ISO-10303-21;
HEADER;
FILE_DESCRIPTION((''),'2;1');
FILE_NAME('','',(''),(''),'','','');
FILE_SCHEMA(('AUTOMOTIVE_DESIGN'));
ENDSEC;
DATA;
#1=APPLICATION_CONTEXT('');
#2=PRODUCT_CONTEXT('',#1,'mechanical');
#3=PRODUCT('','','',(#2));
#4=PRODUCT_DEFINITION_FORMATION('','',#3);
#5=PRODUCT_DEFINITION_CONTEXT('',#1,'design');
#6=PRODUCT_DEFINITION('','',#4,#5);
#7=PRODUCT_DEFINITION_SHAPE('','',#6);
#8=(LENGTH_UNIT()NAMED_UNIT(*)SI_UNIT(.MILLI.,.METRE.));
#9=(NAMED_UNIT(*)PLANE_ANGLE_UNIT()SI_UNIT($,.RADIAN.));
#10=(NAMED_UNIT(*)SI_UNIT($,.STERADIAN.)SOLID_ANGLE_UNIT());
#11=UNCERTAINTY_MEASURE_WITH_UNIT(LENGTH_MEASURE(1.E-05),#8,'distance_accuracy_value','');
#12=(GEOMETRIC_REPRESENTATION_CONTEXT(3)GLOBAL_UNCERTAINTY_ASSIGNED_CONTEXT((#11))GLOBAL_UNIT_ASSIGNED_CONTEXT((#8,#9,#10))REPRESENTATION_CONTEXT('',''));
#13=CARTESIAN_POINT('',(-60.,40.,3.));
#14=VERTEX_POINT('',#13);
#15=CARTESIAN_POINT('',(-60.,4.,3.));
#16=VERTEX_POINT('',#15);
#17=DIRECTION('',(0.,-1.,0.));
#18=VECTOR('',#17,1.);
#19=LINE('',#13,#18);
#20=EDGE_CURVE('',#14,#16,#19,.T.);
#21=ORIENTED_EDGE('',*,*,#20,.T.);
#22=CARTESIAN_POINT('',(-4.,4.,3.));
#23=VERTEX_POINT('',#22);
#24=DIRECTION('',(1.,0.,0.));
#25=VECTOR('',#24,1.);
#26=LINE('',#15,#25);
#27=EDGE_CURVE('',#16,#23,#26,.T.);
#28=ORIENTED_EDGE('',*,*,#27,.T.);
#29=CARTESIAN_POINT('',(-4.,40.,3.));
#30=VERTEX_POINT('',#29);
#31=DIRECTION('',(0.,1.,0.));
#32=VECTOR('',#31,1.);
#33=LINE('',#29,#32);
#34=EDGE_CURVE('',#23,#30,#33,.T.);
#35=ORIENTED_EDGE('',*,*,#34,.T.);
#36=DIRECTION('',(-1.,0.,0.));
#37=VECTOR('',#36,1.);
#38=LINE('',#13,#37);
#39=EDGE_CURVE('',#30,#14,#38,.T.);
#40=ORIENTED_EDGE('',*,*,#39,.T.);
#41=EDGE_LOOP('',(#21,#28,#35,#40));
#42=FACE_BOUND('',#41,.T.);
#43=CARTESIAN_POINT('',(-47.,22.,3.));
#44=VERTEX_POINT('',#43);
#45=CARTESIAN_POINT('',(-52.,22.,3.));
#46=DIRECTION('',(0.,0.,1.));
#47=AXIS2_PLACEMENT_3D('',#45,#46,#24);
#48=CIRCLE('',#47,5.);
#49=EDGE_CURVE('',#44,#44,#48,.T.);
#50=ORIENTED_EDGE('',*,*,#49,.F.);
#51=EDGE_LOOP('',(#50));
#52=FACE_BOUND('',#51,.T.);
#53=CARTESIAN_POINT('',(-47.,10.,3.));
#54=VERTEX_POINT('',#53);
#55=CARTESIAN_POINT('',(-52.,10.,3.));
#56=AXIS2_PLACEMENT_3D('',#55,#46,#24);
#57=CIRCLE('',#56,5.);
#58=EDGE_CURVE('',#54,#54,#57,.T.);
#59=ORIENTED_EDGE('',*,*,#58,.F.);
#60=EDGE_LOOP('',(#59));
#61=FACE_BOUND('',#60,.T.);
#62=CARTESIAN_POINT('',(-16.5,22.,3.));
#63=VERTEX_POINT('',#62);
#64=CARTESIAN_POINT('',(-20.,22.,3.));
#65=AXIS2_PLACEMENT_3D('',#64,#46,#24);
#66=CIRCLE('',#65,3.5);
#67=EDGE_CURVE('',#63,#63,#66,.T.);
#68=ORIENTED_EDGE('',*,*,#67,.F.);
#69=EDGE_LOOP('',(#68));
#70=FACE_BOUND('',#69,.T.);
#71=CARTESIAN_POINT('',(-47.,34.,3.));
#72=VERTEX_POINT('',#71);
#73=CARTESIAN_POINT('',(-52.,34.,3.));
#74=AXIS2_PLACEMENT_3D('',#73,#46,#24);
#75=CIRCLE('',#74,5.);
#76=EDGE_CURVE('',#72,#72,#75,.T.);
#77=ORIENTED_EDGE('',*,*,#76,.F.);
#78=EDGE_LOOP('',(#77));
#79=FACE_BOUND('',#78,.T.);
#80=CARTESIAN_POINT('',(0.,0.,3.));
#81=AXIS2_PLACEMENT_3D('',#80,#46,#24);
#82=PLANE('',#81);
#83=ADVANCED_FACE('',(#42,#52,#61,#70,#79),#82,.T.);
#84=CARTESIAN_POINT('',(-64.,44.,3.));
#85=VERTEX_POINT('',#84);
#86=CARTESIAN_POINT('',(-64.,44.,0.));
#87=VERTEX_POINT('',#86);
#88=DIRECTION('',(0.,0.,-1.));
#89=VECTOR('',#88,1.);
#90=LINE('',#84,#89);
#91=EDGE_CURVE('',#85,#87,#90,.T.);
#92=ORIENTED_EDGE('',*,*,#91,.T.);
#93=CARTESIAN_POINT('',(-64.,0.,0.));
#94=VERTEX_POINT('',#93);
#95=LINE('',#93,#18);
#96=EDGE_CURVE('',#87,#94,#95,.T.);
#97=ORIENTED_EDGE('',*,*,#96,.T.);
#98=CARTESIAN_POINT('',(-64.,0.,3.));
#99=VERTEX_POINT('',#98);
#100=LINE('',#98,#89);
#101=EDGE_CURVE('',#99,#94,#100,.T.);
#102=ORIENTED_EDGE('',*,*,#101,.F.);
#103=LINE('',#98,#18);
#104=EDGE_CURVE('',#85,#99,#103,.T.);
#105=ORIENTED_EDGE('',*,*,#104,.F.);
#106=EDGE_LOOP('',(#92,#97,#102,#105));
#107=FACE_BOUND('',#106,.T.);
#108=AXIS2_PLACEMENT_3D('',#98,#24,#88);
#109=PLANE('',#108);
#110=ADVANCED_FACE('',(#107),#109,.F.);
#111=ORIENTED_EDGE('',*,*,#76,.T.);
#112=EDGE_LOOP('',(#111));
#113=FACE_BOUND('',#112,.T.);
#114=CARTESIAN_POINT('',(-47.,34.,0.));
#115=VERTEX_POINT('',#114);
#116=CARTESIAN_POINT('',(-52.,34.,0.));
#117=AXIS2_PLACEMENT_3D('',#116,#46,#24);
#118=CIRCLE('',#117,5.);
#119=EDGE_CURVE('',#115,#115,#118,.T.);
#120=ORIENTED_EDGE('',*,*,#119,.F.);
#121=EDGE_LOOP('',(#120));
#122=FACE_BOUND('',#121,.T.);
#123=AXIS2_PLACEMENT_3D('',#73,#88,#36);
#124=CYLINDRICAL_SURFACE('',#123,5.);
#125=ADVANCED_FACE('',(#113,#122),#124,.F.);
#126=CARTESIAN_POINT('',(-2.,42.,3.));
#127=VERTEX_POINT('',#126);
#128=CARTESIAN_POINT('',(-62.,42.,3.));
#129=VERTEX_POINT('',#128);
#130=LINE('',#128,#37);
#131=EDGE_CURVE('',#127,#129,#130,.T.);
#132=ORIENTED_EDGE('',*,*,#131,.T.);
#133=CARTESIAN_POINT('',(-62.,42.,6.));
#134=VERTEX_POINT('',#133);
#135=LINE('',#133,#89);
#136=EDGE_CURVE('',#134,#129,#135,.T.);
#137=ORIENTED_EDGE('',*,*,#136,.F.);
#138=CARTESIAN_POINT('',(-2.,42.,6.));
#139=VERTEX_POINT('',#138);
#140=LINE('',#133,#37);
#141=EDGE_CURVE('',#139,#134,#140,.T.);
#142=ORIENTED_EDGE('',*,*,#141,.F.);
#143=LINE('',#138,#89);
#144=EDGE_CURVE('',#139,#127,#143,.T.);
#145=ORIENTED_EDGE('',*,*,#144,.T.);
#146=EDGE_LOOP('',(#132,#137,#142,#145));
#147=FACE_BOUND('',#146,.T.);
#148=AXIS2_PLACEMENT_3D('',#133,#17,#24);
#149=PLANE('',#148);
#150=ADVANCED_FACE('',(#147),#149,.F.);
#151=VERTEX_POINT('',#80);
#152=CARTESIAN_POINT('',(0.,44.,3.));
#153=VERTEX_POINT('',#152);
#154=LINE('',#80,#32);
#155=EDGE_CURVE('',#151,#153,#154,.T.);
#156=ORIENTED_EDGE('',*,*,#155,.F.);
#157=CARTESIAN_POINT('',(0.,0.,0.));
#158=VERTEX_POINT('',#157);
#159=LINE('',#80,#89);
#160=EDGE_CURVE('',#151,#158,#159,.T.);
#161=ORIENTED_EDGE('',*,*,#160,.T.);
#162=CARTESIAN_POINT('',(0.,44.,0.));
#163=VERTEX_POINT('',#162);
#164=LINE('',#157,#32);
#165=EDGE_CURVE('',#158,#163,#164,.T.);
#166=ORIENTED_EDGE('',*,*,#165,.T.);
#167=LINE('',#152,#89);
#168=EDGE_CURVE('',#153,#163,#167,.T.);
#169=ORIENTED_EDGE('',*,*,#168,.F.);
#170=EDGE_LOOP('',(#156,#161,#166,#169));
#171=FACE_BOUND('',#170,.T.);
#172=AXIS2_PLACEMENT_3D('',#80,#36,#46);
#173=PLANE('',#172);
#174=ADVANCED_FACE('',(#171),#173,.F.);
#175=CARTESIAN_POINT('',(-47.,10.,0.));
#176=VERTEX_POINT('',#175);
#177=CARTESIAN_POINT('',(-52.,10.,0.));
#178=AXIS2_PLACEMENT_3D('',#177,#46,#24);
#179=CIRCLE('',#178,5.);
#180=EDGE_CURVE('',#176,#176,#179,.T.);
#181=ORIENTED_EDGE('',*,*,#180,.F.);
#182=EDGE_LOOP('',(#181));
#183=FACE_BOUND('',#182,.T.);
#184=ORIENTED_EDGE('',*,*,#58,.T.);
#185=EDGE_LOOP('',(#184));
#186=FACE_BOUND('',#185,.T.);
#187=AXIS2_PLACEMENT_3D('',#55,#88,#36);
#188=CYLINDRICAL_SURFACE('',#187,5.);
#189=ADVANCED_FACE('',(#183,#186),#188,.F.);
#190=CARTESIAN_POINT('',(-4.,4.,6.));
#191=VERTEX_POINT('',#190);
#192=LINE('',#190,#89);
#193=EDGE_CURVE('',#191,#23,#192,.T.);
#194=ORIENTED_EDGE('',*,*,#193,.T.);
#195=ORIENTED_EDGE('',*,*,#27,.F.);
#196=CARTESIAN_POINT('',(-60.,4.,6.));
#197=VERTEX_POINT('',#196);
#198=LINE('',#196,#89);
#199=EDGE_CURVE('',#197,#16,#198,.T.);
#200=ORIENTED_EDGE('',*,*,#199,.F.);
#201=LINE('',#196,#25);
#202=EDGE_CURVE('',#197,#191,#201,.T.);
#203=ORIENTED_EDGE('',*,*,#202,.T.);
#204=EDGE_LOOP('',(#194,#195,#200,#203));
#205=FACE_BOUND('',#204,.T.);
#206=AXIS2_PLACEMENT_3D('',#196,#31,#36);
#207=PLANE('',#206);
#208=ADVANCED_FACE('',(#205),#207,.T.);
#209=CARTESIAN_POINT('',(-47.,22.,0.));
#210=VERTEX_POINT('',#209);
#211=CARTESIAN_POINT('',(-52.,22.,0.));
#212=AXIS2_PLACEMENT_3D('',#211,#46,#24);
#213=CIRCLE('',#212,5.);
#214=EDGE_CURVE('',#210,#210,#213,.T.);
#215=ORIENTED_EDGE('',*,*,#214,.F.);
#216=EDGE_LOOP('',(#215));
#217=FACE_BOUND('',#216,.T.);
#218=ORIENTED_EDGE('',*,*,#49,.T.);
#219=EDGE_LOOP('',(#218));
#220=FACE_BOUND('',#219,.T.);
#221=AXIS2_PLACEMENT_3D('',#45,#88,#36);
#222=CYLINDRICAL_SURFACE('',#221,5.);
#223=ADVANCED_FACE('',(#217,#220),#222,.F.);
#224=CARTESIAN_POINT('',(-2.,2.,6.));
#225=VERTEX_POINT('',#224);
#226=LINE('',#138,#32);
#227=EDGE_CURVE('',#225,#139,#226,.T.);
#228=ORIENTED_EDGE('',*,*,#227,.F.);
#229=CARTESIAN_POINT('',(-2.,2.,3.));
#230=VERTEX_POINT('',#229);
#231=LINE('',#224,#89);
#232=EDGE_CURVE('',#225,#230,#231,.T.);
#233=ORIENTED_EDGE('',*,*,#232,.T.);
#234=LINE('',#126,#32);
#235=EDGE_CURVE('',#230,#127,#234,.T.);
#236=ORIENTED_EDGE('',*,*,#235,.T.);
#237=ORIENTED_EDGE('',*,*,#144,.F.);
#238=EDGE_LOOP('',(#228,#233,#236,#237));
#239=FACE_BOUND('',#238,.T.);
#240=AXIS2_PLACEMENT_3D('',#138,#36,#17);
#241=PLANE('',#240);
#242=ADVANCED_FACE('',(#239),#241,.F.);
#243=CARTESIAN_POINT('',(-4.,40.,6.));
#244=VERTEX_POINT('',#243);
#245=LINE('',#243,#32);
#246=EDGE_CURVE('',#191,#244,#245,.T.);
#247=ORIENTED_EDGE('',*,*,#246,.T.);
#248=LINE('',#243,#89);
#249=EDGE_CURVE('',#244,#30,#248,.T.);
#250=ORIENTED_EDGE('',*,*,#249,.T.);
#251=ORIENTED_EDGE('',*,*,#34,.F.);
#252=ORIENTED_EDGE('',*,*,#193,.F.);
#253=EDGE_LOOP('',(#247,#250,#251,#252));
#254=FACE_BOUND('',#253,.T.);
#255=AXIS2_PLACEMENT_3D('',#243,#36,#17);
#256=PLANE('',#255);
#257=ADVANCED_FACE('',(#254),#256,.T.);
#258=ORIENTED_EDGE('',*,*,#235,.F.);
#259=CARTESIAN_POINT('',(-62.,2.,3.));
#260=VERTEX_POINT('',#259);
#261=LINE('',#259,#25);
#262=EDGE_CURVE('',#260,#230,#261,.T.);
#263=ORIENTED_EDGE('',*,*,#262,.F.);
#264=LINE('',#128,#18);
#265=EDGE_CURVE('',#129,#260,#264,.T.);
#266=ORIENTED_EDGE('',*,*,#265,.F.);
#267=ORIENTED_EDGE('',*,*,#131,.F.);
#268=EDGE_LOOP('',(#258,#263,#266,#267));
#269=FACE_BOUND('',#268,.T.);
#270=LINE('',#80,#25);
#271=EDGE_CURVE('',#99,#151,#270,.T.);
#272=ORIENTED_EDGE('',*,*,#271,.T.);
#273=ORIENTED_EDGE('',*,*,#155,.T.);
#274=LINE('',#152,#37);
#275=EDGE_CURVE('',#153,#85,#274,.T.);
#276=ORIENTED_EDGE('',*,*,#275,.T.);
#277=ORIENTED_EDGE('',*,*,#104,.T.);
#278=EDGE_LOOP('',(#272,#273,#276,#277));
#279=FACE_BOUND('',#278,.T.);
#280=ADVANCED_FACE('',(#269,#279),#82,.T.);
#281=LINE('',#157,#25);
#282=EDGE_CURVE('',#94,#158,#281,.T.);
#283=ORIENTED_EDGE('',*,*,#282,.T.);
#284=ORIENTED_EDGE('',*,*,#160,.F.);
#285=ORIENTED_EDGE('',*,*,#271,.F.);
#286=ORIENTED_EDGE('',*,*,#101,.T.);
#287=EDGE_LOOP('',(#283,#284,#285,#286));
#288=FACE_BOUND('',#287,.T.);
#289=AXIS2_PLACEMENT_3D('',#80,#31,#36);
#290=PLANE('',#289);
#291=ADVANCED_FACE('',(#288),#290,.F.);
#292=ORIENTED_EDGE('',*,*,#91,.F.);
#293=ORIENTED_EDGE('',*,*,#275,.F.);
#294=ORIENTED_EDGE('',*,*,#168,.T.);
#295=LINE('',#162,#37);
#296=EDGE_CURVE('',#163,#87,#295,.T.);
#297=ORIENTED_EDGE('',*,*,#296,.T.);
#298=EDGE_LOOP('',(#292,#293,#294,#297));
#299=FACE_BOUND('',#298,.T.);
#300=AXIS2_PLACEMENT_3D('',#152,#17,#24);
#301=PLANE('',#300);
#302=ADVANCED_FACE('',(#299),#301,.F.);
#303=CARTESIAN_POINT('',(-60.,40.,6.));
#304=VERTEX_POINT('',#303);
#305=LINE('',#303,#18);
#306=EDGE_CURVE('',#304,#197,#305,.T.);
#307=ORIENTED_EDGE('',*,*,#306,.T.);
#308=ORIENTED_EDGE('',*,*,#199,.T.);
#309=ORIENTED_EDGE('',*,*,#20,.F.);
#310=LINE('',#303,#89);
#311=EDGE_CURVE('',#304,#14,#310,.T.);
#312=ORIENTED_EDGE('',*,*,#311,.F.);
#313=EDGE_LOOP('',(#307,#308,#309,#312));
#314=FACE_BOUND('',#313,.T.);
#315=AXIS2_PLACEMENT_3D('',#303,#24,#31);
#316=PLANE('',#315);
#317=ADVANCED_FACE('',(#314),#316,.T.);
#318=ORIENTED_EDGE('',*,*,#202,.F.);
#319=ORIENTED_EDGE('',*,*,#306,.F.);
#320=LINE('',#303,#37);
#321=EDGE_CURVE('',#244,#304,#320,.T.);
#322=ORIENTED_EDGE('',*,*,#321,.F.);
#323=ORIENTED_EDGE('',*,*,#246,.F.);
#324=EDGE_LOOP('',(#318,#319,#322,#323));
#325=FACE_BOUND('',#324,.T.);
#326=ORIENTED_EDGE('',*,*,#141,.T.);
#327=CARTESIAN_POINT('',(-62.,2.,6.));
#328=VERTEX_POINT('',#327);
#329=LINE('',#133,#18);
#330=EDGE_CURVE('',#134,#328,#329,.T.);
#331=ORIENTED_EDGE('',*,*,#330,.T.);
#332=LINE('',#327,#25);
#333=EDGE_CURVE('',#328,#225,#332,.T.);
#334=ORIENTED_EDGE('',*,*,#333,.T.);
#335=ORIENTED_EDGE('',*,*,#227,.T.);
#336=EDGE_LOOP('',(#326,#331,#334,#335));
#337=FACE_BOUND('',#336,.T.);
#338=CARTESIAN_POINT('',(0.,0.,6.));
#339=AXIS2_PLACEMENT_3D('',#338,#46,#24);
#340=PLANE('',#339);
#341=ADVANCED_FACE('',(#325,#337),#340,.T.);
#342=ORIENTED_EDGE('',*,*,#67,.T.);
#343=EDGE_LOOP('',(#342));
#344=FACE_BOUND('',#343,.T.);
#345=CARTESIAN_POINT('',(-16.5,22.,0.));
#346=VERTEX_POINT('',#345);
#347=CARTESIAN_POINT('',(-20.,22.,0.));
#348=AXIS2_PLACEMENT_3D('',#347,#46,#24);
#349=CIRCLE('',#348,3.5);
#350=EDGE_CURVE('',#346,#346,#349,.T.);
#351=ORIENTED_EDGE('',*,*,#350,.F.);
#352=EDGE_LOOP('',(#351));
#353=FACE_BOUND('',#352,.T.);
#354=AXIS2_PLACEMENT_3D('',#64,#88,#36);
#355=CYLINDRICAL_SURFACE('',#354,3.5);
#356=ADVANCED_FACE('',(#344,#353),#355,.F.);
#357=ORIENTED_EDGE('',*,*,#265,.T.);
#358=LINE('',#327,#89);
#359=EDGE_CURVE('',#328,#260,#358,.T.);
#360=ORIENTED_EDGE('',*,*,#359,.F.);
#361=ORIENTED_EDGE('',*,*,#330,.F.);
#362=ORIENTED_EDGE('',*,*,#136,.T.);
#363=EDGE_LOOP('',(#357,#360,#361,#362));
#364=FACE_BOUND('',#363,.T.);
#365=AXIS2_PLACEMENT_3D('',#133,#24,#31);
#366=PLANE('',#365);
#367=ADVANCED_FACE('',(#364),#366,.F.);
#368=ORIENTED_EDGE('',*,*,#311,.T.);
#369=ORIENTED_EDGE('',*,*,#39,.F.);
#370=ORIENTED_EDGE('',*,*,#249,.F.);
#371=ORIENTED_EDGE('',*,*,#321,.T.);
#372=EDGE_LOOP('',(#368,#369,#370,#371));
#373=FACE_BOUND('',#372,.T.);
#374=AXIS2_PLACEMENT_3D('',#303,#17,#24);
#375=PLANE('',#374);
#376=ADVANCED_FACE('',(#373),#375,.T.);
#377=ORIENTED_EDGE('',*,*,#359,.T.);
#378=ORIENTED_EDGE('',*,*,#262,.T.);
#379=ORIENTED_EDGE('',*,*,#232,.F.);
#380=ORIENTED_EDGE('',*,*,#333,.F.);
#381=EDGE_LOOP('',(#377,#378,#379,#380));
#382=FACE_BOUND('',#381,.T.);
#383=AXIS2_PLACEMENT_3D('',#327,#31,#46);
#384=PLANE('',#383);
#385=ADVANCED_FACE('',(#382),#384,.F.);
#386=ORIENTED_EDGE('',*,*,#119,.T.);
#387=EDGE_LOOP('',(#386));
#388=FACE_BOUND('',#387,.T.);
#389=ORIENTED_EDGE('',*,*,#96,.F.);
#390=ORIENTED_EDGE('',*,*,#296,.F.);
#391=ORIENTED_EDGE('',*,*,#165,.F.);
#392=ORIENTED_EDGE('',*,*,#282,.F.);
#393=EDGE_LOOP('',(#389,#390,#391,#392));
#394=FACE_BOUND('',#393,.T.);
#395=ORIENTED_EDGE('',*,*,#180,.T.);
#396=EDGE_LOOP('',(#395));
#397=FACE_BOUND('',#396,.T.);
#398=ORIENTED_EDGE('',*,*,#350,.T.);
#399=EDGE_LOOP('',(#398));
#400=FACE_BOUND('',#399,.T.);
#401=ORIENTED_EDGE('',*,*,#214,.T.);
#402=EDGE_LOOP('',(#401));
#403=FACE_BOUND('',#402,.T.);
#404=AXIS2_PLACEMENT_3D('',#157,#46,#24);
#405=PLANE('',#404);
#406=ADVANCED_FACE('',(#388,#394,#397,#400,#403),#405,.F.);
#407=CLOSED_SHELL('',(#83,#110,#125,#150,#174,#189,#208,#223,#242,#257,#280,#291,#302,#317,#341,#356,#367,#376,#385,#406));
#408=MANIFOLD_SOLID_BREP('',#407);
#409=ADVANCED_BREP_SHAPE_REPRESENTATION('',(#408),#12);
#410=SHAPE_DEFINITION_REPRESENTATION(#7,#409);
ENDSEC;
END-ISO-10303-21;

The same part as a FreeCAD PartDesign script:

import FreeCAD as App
import Part
import Sketcher
from FreeCAD import Vector


def add_polygon(sketch, points):
    """Adds a closed chain of lines whose ends are joined by coincident constraints."""
    first, n = sketch.GeometryCount, len(points)
    for a, b in zip(points, points[1:] + points[:1]):
        sketch.addGeometry(Part.LineSegment(App.Vector(*a, 0), App.Vector(*b, 0)), False)
    for i in range(n):
        sketch.addConstraint(Sketcher.Constraint("Coincident", first + i, 2, first + (i + 1) % n, 1))

doc = App.newDocument("Part")
body = doc.addObject("PartDesign::Body", "Body")

# Sketch on XY plane
sketch1 = body.newObject("Sketcher::SketchObject", "Sketch")
sketch1.AttachmentSupport = (doc.getObject("XY_Plane"), [""])
sketch1.MapMode = "FlatFace"
add_polygon(sketch1, [(-64, 44), (-64, 0), (0, 0), (0, 44)])  # lines 0-3
sketch1.addGeometry(Part.Circle(Vector(-52, 10, 0), Vector(0, 0, 1), 5), False)  # 4
sketch1.addGeometry(Part.Circle(Vector(-52, 22, 0), Vector(0, 0, 1), 5), False)  # 5
sketch1.addGeometry(Part.Circle(Vector(-52, 34, 0), Vector(0, 0, 1), 5), False)  # 6
sketch1.addGeometry(Part.Circle(Vector(-20, 22, 0), Vector(0, 0, 1), 3.5), False)  # 7
sketch1.addConstraint(Sketcher.Constraint("Vertical", 0))
sketch1.addConstraint(Sketcher.Constraint("Horizontal", 1))
sketch1.addConstraint(Sketcher.Constraint("Vertical", 2))
sketch1.addConstraint(Sketcher.Constraint("Horizontal", 3))
sketch1.addConstraint(Sketcher.Constraint("Coincident", 1, 2, -1, 1))
sketch1.addConstraint(Sketcher.Constraint("Equal", 4, 5))
sketch1.addConstraint(Sketcher.Constraint("Equal", 5, 6))
sketch1.addConstraint(Sketcher.Constraint("Horizontal", 5, 3, 7, 3))
sketch1.addConstraint(Sketcher.Constraint("Vertical", 4, 3, 5, 3))
sketch1.addConstraint(Sketcher.Constraint("Vertical", 5, 3, 6, 3))
sketch1.addConstraint(Sketcher.Constraint("Diameter", 4, 10.0))
sketch1.addConstraint(Sketcher.Constraint("Diameter", 7, 7.0))
sketch1.addConstraint(Sketcher.Constraint("DistanceX", 1, 1, 1, 2, 64.0))
sketch1.addConstraint(Sketcher.Constraint("DistanceY", 0, 2, 0, 1, 44.0))
sketch1.addConstraint(Sketcher.Constraint("DistanceX", 4, 3, -1, 1, 52.0))
sketch1.addConstraint(Sketcher.Constraint("DistanceY", -1, 1, 4, 3, 10.0))
sketch1.addConstraint(Sketcher.Constraint("DistanceY", -1, 1, 5, 3, 22.0))
sketch1.addConstraint(Sketcher.Constraint("DistanceY", -1, 1, 6, 3, 34.0))
sketch1.addConstraint(Sketcher.Constraint("DistanceX", 7, 3, -1, 1, 20.0))
pad1 = body.newObject("PartDesign::Pad", "Pad")
pad1.Profile = sketch1
pad1.Length = 3

# Sketch on XY plane
sketch2 = body.newObject("Sketcher::SketchObject", "Sketch001")
sketch2.AttachmentSupport = (doc.getObject("XY_Plane"), [""])
sketch2.MapMode = "FlatFace"
sketch2.AttachmentOffset = App.Placement(Vector(0, 0, 3), App.Rotation())
add_polygon(sketch2, [(-62, 42), (-62, 2), (-2, 2), (-2, 42)])  # lines 0-3
add_polygon(sketch2, [(-4, 4), (-60, 4), (-60, 40), (-4, 40)])  # lines 4-7
sketch2.addConstraint(Sketcher.Constraint("Vertical", 0))
sketch2.addConstraint(Sketcher.Constraint("Horizontal", 1))
sketch2.addConstraint(Sketcher.Constraint("Vertical", 2))
sketch2.addConstraint(Sketcher.Constraint("Horizontal", 3))
sketch2.addConstraint(Sketcher.Constraint("Horizontal", 4))
sketch2.addConstraint(Sketcher.Constraint("Vertical", 5))
sketch2.addConstraint(Sketcher.Constraint("Horizontal", 6))
sketch2.addConstraint(Sketcher.Constraint("Vertical", 7))
sketch2.addConstraint(Sketcher.Constraint("DistanceX", 1, 1, 1, 2, 60.0))
sketch2.addConstraint(Sketcher.Constraint("DistanceX", 4, 2, 4, 1, 56.0))
sketch2.addConstraint(Sketcher.Constraint("DistanceY", 0, 2, 0, 1, 40.0))
sketch2.addConstraint(Sketcher.Constraint("DistanceY", 5, 1, 5, 2, 36.0))
sketch2.addConstraint(Sketcher.Constraint("DistanceX", 0, 2, -1, 1, 62.0))
sketch2.addConstraint(Sketcher.Constraint("DistanceY", -1, 1, 0, 2, 2.0))
sketch2.addConstraint(Sketcher.Constraint("DistanceX", 4, 2, -1, 1, 60.0))
sketch2.addConstraint(Sketcher.Constraint("DistanceY", -1, 1, 4, 2, 4.0))
pad2 = body.newObject("PartDesign::Pad", "Pad001")
pad2.Profile = sketch2
pad2.Length = 3

doc.recompute()
